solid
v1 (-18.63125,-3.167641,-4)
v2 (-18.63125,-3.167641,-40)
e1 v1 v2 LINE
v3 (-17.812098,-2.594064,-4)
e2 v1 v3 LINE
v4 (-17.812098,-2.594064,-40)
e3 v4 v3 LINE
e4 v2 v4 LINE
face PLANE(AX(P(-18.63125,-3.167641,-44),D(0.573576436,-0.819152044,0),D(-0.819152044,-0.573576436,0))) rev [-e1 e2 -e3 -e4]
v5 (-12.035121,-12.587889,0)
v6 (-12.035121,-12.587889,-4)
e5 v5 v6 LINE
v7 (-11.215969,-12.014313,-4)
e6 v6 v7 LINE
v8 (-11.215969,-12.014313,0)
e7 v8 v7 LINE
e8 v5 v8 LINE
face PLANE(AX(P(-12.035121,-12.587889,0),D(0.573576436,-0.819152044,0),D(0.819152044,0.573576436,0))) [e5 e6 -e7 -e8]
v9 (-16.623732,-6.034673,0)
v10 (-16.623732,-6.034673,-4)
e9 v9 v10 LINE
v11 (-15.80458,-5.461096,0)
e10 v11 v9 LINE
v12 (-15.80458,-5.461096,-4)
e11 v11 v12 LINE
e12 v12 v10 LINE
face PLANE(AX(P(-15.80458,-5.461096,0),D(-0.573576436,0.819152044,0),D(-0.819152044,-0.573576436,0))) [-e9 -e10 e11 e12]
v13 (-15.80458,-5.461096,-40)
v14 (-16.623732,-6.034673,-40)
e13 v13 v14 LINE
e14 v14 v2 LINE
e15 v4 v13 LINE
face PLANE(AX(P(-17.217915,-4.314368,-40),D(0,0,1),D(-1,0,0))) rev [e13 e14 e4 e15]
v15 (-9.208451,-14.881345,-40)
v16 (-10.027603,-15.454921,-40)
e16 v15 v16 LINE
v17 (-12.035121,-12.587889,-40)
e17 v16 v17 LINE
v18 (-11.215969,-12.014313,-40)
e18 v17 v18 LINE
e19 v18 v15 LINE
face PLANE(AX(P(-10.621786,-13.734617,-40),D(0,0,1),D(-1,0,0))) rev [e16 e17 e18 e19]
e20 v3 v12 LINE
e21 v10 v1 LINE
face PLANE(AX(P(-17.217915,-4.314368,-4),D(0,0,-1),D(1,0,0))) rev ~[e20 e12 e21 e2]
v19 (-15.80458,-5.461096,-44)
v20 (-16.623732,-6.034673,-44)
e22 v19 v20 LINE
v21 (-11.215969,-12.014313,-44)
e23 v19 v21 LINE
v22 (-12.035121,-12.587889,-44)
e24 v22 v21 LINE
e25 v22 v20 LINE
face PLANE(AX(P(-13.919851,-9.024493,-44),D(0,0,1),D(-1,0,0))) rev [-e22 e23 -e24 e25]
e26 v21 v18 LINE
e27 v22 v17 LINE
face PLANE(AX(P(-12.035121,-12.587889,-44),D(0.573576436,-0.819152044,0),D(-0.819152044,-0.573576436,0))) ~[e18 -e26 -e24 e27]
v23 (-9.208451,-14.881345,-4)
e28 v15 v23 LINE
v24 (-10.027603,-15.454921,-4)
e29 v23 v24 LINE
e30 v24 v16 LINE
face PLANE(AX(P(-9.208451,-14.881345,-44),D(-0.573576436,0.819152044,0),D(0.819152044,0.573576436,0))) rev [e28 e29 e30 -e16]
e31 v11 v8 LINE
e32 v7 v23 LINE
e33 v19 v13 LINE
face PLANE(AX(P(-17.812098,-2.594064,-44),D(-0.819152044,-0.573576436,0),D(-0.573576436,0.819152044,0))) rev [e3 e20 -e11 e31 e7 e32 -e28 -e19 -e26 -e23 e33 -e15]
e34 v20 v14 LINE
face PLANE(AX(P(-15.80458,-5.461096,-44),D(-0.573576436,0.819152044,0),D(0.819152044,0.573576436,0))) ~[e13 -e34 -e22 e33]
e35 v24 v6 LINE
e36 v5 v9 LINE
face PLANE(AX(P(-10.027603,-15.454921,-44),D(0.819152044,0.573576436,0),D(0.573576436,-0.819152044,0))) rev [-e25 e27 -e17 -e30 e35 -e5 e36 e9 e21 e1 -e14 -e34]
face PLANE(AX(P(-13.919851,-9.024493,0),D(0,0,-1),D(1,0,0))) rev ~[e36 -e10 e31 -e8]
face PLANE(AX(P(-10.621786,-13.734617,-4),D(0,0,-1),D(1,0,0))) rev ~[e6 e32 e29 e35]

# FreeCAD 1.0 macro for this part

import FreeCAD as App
import Part
import Sketcher

V = App.Vector
Q = App.Units.Quantity

doc = App.newDocument("Part")
body = doc.addObject("PartDesign::Body", "Body")

# Sketch on XY plane
sketch1 = body.newObject("Sketcher::SketchObject", "Sketch")
sketch1.AttachmentSupport = (doc.getObject("XY_Plane"), [""])
sketch1.MapMode = "FlatFace"
sketch1.addGeometry(Part.LineSegment(V(10.027603, 15.454921, 0), V(9.208451, 14.881345, 0)), False)
sketch1.addGeometry(Part.LineSegment(V(9.208451, 14.881345, 0), V(17.812098, 2.594064, 0)), False)
sketch1.addGeometry(Part.LineSegment(V(17.812098, 2.594064, 0), V(18.63125, 3.167641, 0)), False)
sketch1.addGeometry(Part.LineSegment(V(18.63125, 3.167641, 0), V(10.027603, 15.454921, 0)), False)
sketch1.addConstraint(Sketcher.Constraint("Coincident", 0, 2, 1, 1))
sketch1.addConstraint(Sketcher.Constraint("Coincident", 1, 2, 2, 1))
sketch1.addConstraint(Sketcher.Constraint("Coincident", 2, 2, 3, 1))
sketch1.addConstraint(Sketcher.Constraint("Coincident", 3, 2, 0, 1))
sketch1.addConstraint(Sketcher.Constraint("Perpendicular", 0, 1))
sketch1.addConstraint(Sketcher.Constraint("Perpendicular", 1, 2))
sketch1.addConstraint(Sketcher.Constraint("Perpendicular", 2, 3))
sketch1.addConstraint(Sketcher.Constraint("Angle", 0, Q("-145 deg")))
sketch1.addConstraint(Sketcher.Constraint("Distance", 0, Q("1 mm")))
sketch1.addConstraint(Sketcher.Constraint("Distance", 1, Q("15 mm")))
sketch1.addConstraint(Sketcher.Constraint("DistanceX", -1, 1, 0, 2, Q("9.208451 mm")))
sketch1.addConstraint(Sketcher.Constraint("DistanceY", -1, 1, 2, 2, Q("3.167641 mm")))
pad1 = body.newObject("PartDesign::Pad", "Pad")
pad1.Profile = sketch1
pad1.Length = 22
pad1.Reversed = True
doc.recompute()

datumplane = body.newObject("PartDesign::Plane", "DatumPlane")
datumplane.AttachmentSupport = (doc.getObject("XY_Plane"), [""])
datumplane.MapMode = "FlatFace"
datumplane.AttachmentOffset = App.Placement(V(0, 0, -22), App.Rotation())
mirrored = body.newObject("PartDesign::Mirrored", "Mirrored")
mirrored.Originals = [pad1]
mirrored.MirrorPlane = (datumplane, [""])
body.Tip = mirrored

# Sketch on XY plane
sketch2 = body.newObject("Sketcher::SketchObject", "Sketch001")
sketch2.AttachmentSupport = (doc.getObject("XY_Plane"), [""])
sketch2.MapMode = "FlatFace"
sketch2.addGeometry(Part.LineSegment(V(10.027603, 15.454921, 0), V(9.208451, 14.881345, 0)), False)
sketch2.addGeometry(Part.LineSegment(V(9.208451, 14.881345, 0), V(11.215969, 12.014313, 0)), False)
sketch2.addGeometry(Part.LineSegment(V(11.215969, 12.014313, 0), V(12.035121, 12.587889, 0)), False)
sketch2.addGeometry(Part.LineSegment(V(12.035121, 12.587889, 0), V(10.027603, 15.454921, 0)), False)
sketch2.addGeometry(Part.LineSegment(V(17.812098, 2.594064, 0), V(18.63125, 3.167641, 0)), False)
sketch2.addGeometry(Part.LineSegment(V(18.63125, 3.167641, 0), V(16.623732, 6.034673, 0)), False)
sketch2.addGeometry(Part.LineSegment(V(16.623732, 6.034673, 0), V(15.80458, 5.461096, 0)), False)
sketch2.addGeometry(Part.LineSegment(V(15.80458, 5.461096, 0), V(17.812098, 2.594064, 0)), False)
sketch2.addConstraint(Sketcher.Constraint("Coincident", 0, 2, 1, 1))
sketch2.addConstraint(Sketcher.Constraint("Coincident", 1, 2, 2, 1))
sketch2.addConstraint(Sketcher.Constraint("Coincident", 2, 2, 3, 1))
sketch2.addConstraint(Sketcher.Constraint("Coincident", 3, 2, 0, 1))
sketch2.addConstraint(Sketcher.Constraint("Coincident", 4, 2, 5, 1))
sketch2.addConstraint(Sketcher.Constraint("Coincident", 5, 2, 6, 1))
sketch2.addConstraint(Sketcher.Constraint("Coincident", 6, 2, 7, 1))
sketch2.addConstraint(Sketcher.Constraint("Coincident", 7, 2, 4, 1))
sketch2.addConstraint(Sketcher.Constraint("Perpendicular", 0, 1))
sketch2.addConstraint(Sketcher.Constraint("Perpendicular", 1, 2))
sketch2.addConstraint(Sketcher.Constraint("Perpendicular", 2, 3))
sketch2.addConstraint(Sketcher.Constraint("Perpendicular", 3, 4))
sketch2.addConstraint(Sketcher.Constraint("Perpendicular", 4, 5))
sketch2.addConstraint(Sketcher.Constraint("Perpendicular", 5, 6))
sketch2.addConstraint(Sketcher.Constraint("Perpendicular", 6, 7))
sketch2.addConstraint(Sketcher.Constraint("Equal", 2, 4))
sketch2.addConstraint(Sketcher.Constraint("Equal", 3, 5))
sketch2.addConstraint(Sketcher.Constraint("Angle", 0, Q("-145 deg")))
sketch2.addConstraint(Sketcher.Constraint("Distance", 0, Q("1 mm")))
sketch2.addConstraint(Sketcher.Constraint("Distance", 1, Q("3.5 mm")))
sketch2.addConstraint(Sketcher.Constraint("DistanceX", 0, 2, 4, 2, Q("9.422799 mm")))
sketch2.addConstraint(Sketcher.Constraint("DistanceX", -1, 1, 0, 2, Q("9.208451 mm")))
sketch2.addConstraint(Sketcher.Constraint("DistanceY", -1, 1, 2, 2, Q("12.587889 mm")))
sketch2.addConstraint(Sketcher.Constraint("DistanceY", -1, 1, 4, 2, Q("3.167641 mm")))
pocket1 = body.newObject("PartDesign::Pocket", "Pocket")
pocket1.Profile = sketch2
pocket1.Length = 4
doc.recompute()

datumplane2 = body.newObject("PartDesign::Plane", "DatumPlane001")
datumplane2.AttachmentSupport = (doc.getObject("XY_Plane"), [""])
datumplane2.MapMode = "FlatFace"
datumplane2.AttachmentOffset = App.Placement(V(0, 0, -22), App.Rotation())
mirrored2 = body.newObject("PartDesign::Mirrored", "Mirrored001")
mirrored2.Originals = [pocket1]
mirrored2.MirrorPlane = (datumplane2, [""])
body.Tip = mirrored2
body2 = doc.addObject("PartDesign::Body", "Body001")
doc.recompute()

body.Placement = App.Placement(V(0, 0, 0), App.Rotation(V(0, 0, 1), 180))
boolean = body2.newObject("PartDesign::Boolean", "Boolean")
boolean.Type = "Fuse"
boolean.addObjects([body])

doc.recompute()
